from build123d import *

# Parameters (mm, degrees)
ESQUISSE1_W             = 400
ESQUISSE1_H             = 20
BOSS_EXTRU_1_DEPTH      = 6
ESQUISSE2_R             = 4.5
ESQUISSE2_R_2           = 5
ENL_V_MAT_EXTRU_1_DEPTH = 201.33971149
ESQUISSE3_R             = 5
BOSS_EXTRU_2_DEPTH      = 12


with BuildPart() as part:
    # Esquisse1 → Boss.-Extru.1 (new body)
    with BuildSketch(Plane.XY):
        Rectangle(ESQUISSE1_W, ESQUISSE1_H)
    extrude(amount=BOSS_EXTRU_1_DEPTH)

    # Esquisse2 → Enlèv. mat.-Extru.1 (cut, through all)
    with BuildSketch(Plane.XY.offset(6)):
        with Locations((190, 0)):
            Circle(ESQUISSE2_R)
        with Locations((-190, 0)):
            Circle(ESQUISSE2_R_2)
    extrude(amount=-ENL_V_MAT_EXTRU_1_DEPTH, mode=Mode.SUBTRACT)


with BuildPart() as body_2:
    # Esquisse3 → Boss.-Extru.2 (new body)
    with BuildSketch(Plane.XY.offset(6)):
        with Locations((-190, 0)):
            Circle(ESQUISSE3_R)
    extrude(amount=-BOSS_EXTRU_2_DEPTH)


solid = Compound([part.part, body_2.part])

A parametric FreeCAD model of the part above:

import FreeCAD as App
import Part
import Sketcher


def add_polygon(sketch, points):
    """Adds a closed chain of lines whose ends are joined by coincident constraints."""
    first, n = sketch.GeometryCount, len(points)
    for a, b in zip(points, points[1:] + points[:1]):
        sketch.addGeometry(Part.LineSegment(App.Vector(*a, 0), App.Vector(*b, 0)), False)
    for i in range(n):
        sketch.addConstraint(Sketcher.Constraint("Coincident", first + i, 2, first + (i + 1) % n, 1))

doc = App.newDocument("Part")
body = doc.addObject("PartDesign::Body", "Body")

# Sketch on XY plane
sketch1 = body.newObject("Sketcher::SketchObject", "Sketch")
sketch1.AttachmentSupport = (doc.getObject("XY_Plane"), [""])
sketch1.MapMode = "FlatFace"
add_polygon(sketch1, [(-200, 10), (-200, -10), (200, -10), (200, 10)])  # lines 0-3
sketch1.addConstraint(Sketcher.Constraint("Vertical", 0))
sketch1.addConstraint(Sketcher.Constraint("Horizontal", 1))
sketch1.addConstraint(Sketcher.Constraint("Vertical", 2))
sketch1.addConstraint(Sketcher.Constraint("Horizontal", 3))
sketch1.addConstraint(Sketcher.Constraint("Symmetric", 0, 2, 2, 2, -1, 1))
sketch1.addConstraint(Sketcher.Constraint("DistanceX", 1, 1, 1, 2, 400.0))
sketch1.addConstraint(Sketcher.Constraint("DistanceY", 0, 2, 0, 1, 20.0))
pad1 = body.newObject("PartDesign::Pad", "Pad")
pad1.Profile = sketch1
pad1.Length = 6

# Sketch on XY plane
sketch2 = body.newObject("Sketcher::SketchObject", "Sketch001")
sketch2.AttachmentSupport = (doc.getObject("XY_Plane"), [""])
sketch2.MapMode = "FlatFace"
sketch2.AttachmentOffset = App.Placement(App.Vector(0, 0, 6), App.Rotation())
sketch2.addGeometry(Part.Circle(App.Vector(190, 0, 0), App.Vector(0, 0, 1), 4.5), False)
sketch2.addGeometry(Part.Circle(App.Vector(-190, 0, 0), App.Vector(0, 0, 1), 5), False)
sketch2.addConstraint(Sketcher.Constraint("Symmetric", 0, 3, 1, 3, -1, 1))
sketch2.addConstraint(Sketcher.Constraint("PointOnObject", 0, 3, -1))
sketch2.addConstraint(Sketcher.Constraint("Diameter", 0, 9.0))
sketch2.addConstraint(Sketcher.Constraint("Diameter", 1, 10.0))
sketch2.addConstraint(Sketcher.Constraint("DistanceX", -1, 1, 0, 3, 190.0))
pocket1 = body.newObject("PartDesign::Pocket", "Pocket")
pocket1.Profile = sketch2
pocket1.Type = "ThroughAll"
body2 = doc.addObject("PartDesign::Body", "Body001")

# Sketch on XY plane
sketch3 = body2.newObject("Sketcher::SketchObject", "Sketch002")
sketch3.AttachmentSupport = (doc.getObject("XY_Plane001"), [""])
sketch3.MapMode = "FlatFace"
sketch3.AttachmentOffset = App.Placement(App.Vector(0, 0, 6), App.Rotation())
sketch3.addGeometry(Part.Circle(App.Vector(-190, 0, 0), App.Vector(0, 0, 1), 5), False)
sketch3.addConstraint(Sketcher.Constraint("PointOnObject", 0, 3, -1))
sketch3.addConstraint(Sketcher.Constraint("Diameter", 0, 10.0))
sketch3.addConstraint(Sketcher.Constraint("DistanceX", 0, 3, -1, 1, 190.0))
pad2 = body2.newObject("PartDesign::Pad", "Pad001")
pad2.Profile = sketch3
pad2.Length = 12
pad2.Reversed = True

doc.recompute()
